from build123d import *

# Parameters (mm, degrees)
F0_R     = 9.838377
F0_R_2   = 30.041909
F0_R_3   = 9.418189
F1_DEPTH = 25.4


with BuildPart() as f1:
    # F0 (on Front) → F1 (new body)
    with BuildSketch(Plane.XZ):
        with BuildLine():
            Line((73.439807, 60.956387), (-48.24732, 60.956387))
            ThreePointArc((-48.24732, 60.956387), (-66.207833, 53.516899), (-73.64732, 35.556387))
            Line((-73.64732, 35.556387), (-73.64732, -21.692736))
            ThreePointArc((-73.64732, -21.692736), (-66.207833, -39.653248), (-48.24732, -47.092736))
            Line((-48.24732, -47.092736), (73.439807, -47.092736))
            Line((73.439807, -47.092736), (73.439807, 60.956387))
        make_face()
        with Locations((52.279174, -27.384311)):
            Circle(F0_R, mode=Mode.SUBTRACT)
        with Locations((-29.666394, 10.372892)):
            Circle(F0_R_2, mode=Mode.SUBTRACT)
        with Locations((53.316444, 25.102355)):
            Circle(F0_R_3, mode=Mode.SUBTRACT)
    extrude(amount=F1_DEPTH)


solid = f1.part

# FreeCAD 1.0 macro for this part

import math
import FreeCAD as App
import Part
import Sketcher

V = App.Vector
Q = App.Units.Quantity

doc = App.newDocument("Part")
body = doc.addObject("PartDesign::Body", "Body")

sketch1 = doc.addObject("Sketcher::SketchObject", "Sketch")
body.addObject(sketch1)
sketch1.AttachmentSupport = (doc.XZ_Plane, [""])
sketch1.MapMode = "FlatFace"
sketch1.addGeometry([
    Part.LineSegment(V(73.439807, 60.956387, 0), V(-48.24732, 60.956387, 0)),
    Part.ArcOfCircle(Part.Circle(V(-48.247321, 35.556388, 0), V(0, 0, 1), 25.399999), math.radians(89.999998), math.radians(180.000002)),
    Part.LineSegment(V(-73.64732, 35.556387, 0), V(-73.64732, -21.692736, 0)),
    Part.ArcOfCircle(Part.Circle(V(-48.247321, -21.692737, 0), V(0, 0, 1), 25.399999), math.radians(179.999998), math.radians(270.000002)),
    Part.LineSegment(V(-48.24732, -47.092736, 0), V(73.439807, -47.092736, 0)),
    Part.LineSegment(V(73.439807, -47.092736, 0), V(73.439807, 60.956387, 0)),
    Part.Circle(V(52.279174, -27.384311, 0), V(0, 0, 1), 9.838377),
    Part.Circle(V(-29.666394, 10.372892, 0), V(0, 0, 1), 30.041909),
    Part.Circle(V(53.316444, 25.102355, 0), V(0, 0, 1), 9.418189),
], False)
sketch1.addConstraint([
    Sketcher.Constraint("Tangent", 0, 2, 1, 1),
    Sketcher.Constraint("Tangent", 1, 2, 2, 1),
    Sketcher.Constraint("Tangent", 2, 2, 3, 1),
    Sketcher.Constraint("Tangent", 3, 2, 4, 1),
    Sketcher.Constraint("Coincident", 4, 2, 5, 1),
    Sketcher.Constraint("Coincident", 5, 2, 0, 1),
    Sketcher.Constraint("Horizontal", 0),
    Sketcher.Constraint("Vertical", 2),
    Sketcher.Constraint("Horizontal", 4),
    Sketcher.Constraint("Vertical", 5),
    Sketcher.Constraint("Equal", 1, 3),
    Sketcher.Constraint("Radius", 1, Q("1 in")),
    Sketcher.Constraint("Diameter", 8, 18.836378),
    Sketcher.Constraint("Diameter", 6, 19.676754),
    Sketcher.Constraint("Diameter", 7, 60.083818),
    Sketcher.Constraint("DistanceY", 7, 3, 8, 3, Q("0.5799001 in")),
    Sketcher.Constraint("DistanceY", 6, 3, 1, 3, 62.940699),
    Sketcher.Constraint("DistanceX", 7, 3, 4, 2, 103.106201),
    Sketcher.Constraint("DistanceX", 0, 2, 0, 1, 121.687127),
    Sketcher.Constraint("DistanceY", 2, 2, 2, 1, 57.249123),
    Sketcher.Constraint("DistanceX", 1, 3, -1, 1, 48.247321),
    Sketcher.Constraint("DistanceY", 6, 3, -1, 1, 27.384311),
    Sketcher.Constraint("DistanceY", 3, 3, 7, 3, 32.065629),
    Sketcher.Constraint("DistanceX", 6, 3, 8, 3, 1.03727),
    Sketcher.Constraint("DistanceX", 7, 3, 8, 3, 82.982838),
])
pad1 = doc.addObject("PartDesign::Pad", "Pad")
body.addObject(pad1)
pad1.Profile = sketch1
pad1.Length = Q("1 in")

doc.recompute()
